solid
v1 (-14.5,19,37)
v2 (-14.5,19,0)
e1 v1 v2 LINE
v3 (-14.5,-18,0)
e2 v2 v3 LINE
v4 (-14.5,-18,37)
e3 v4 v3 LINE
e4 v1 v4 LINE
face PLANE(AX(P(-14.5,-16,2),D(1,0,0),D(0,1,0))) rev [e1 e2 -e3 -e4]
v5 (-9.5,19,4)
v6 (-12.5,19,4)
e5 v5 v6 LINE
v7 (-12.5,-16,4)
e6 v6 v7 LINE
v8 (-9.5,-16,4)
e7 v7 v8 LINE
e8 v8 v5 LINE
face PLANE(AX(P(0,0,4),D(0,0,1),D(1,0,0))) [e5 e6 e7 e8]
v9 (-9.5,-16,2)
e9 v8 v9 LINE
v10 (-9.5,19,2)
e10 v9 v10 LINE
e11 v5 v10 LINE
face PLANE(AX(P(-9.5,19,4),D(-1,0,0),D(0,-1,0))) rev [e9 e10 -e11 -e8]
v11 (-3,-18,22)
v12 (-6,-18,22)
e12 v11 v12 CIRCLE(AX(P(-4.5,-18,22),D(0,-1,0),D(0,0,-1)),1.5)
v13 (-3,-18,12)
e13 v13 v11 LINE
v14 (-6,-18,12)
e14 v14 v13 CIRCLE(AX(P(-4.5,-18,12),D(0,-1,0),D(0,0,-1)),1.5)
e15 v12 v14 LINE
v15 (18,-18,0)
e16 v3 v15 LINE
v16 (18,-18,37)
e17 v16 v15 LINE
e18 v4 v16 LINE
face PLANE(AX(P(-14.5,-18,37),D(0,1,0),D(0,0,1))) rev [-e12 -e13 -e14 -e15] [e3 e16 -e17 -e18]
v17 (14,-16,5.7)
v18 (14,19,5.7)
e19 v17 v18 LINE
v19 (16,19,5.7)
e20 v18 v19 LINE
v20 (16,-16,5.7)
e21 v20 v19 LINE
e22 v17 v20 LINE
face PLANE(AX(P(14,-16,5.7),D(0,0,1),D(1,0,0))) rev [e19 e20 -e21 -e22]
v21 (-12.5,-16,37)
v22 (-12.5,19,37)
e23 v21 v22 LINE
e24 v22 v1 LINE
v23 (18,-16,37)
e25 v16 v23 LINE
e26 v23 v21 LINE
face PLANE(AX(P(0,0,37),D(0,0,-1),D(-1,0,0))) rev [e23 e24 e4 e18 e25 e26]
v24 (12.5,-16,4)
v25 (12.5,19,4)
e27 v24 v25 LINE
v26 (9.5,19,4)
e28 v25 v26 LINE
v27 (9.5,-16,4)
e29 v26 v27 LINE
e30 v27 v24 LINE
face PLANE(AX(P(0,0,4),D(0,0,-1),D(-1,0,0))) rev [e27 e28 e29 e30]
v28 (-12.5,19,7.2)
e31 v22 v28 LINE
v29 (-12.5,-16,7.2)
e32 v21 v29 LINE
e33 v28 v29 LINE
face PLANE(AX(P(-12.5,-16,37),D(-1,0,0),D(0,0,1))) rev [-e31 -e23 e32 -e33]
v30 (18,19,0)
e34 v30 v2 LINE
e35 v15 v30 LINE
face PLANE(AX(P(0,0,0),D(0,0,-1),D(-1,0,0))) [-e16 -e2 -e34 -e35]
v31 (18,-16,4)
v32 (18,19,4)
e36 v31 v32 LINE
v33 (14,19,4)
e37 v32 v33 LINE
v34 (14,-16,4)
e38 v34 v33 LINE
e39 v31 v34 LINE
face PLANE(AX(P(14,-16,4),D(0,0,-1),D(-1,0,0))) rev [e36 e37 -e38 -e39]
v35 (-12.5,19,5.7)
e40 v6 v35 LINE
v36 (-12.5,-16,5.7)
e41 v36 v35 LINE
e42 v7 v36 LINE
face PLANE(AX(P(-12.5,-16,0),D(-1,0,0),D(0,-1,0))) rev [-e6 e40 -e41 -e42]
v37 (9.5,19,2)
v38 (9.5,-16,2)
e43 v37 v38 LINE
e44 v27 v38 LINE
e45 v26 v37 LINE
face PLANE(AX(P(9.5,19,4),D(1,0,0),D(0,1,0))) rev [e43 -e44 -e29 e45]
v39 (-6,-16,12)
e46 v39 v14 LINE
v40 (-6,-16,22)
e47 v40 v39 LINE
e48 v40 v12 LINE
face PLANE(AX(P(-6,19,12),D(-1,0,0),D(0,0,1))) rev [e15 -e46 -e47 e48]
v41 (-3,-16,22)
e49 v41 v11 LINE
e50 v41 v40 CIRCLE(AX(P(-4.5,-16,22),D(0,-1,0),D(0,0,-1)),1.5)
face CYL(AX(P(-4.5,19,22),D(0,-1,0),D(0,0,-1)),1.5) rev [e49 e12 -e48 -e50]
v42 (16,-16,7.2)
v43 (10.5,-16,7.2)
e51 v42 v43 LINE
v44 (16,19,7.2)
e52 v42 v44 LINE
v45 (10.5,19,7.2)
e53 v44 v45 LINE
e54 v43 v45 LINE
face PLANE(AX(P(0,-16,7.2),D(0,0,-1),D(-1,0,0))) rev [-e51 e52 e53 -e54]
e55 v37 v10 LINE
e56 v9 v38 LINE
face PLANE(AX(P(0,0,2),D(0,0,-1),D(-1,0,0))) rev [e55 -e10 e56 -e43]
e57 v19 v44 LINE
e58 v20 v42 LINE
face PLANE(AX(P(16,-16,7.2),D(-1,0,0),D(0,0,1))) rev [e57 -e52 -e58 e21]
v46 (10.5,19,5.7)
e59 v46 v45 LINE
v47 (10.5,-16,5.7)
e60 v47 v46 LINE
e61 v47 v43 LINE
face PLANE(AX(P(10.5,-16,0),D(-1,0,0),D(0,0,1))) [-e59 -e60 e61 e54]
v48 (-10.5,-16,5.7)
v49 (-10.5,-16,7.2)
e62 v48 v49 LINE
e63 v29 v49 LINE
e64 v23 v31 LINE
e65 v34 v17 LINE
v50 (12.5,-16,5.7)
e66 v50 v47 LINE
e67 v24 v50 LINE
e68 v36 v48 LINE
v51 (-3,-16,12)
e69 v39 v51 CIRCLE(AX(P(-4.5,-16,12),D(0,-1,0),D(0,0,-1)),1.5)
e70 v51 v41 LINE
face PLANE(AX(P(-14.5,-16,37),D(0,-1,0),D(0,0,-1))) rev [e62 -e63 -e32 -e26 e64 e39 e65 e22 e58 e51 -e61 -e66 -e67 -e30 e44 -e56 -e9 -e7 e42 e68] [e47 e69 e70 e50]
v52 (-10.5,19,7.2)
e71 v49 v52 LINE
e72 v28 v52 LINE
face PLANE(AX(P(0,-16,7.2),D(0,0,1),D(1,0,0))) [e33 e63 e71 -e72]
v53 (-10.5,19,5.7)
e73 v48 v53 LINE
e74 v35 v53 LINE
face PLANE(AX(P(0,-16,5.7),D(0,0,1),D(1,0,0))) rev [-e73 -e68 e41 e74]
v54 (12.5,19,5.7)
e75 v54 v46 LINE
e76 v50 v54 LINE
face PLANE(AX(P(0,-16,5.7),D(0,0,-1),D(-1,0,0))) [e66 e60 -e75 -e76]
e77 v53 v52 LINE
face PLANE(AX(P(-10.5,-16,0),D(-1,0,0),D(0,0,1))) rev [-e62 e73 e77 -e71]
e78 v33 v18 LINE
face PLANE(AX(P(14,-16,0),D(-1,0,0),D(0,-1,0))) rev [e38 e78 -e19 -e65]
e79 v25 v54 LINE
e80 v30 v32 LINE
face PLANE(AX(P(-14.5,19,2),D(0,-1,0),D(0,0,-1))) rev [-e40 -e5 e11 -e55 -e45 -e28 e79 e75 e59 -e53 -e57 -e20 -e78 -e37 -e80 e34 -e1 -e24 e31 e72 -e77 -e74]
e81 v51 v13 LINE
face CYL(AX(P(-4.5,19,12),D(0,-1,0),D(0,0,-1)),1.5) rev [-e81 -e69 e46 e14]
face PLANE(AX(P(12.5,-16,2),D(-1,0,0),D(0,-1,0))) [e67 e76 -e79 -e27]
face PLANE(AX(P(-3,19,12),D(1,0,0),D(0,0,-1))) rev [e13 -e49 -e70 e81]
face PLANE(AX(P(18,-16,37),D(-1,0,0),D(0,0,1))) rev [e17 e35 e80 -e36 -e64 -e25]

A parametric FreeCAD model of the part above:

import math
import FreeCAD as App
import Part
import Sketcher

V = App.Vector
Q = App.Units.Quantity


def add_polygon(sketch, points):
    """Adds a closed chain of lines whose ends are joined by coincident constraints."""
    first, n = sketch.GeometryCount, len(points)
    for a, b in zip(points, points[1:] + points[:1]):
        sketch.addGeometry(Part.LineSegment(App.Vector(*a, 0), App.Vector(*b, 0)), False)
    for i in range(n):
        sketch.addConstraint(Sketcher.Constraint("Coincident", first + i, 2, first + (i + 1) % n, 1))

doc = App.newDocument("Part")
body = doc.addObject("PartDesign::Body", "Body")

sketch1 = doc.addObject("Sketcher::SketchObject", "Sketch")
body.addObject(sketch1)
sketch1.AttachmentSupport = (doc.XY_Plane, [""])
sketch1.MapMode = "FlatFace"
add_polygon(sketch1, [(-14, 19), (-14, -16), (14, -16), (14, 19)])
sketch1.addConstraint([
    Sketcher.Constraint("Vertical", 0),
    Sketcher.Constraint("Horizontal", 1),
    Sketcher.Constraint("Vertical", 2),
    Sketcher.Constraint("Horizontal", 3),
    Sketcher.Constraint("DistanceX", 1, 1, 1, 2, Q("29 mm")),
    Sketcher.Constraint("DistanceY", 0, 2, 0, 1, Q("35 mm")),
    Sketcher.Constraint("DistanceY", 0, 2, -1, 1, Q("16 mm")),
    Sketcher.Constraint("DistanceX", 0, 2, -1, 1, Q("14.5 mm")),
])
pad1 = doc.addObject("PartDesign::Pad", "Pad")
body.addObject(pad1)
pad1.Profile = sketch1
pad1.Length = 2

sketch2 = doc.addObject("Sketcher::SketchObject", "Sketch001")
body.addObject(sketch2)
sketch2.AttachmentSupport = (doc.XY_Plane, [""])
sketch2.MapMode = "FlatFace"
sketch2.AttachmentOffset = App.Placement(V(0, 0, 2), App.Rotation())
add_polygon(sketch2, [(-12.5, 19), (-12.5, -16), (-9.5, -16), (-9.5, 19)])
add_polygon(sketch2, [(9.5, 19), (9.5, -16), (12.5, -16), (12.5, 19)])
sketch2.addConstraint([
    Sketcher.Constraint("Vertical", 0),
    Sketcher.Constraint("Horizontal", 1),
    Sketcher.Constraint("Vertical", 2),
    Sketcher.Constraint("Horizontal", 3),
    Sketcher.Constraint("Vertical", 4),
    Sketcher.Constraint("Horizontal", 5),
    Sketcher.Constraint("Vertical", 6),
    Sketcher.Constraint("Horizontal", 7),
    Sketcher.Constraint("Symmetric", 1, 2, 4, 2, -2),
    Sketcher.Constraint("Symmetric", 3, 2, 6, 2, -2),
    Sketcher.Constraint("DistanceX", 1, 1, 1, 2, Q("3 mm")),
    Sketcher.Constraint("DistanceY", 0, 2, 0, 1, Q("35 mm")),
    Sketcher.Constraint("DistanceY", 0, 2, -1, 1, Q("16 mm")),
    Sketcher.Constraint("DistanceX", 1, 2, 4, 2, Q("19 mm")),
])
pad2 = doc.addObject("PartDesign::Pad", "Pad001")
body.addObject(pad2)
pad2.Profile = sketch2
pad2.Length = 2

sketch3 = doc.addObject("Sketcher::SketchObject", "Sketch002")
body.addObject(sketch3)
sketch3.AttachmentSupport = (doc.XZ_Plane, [""])
sketch3.MapMode = "FlatFace"
sketch3.AttachmentOffset = App.Placement(V(0, 0, -19), App.Rotation())
add_polygon(sketch3, [(-14, 7.2), (-10.5, 7.2), (-10.5, 5.7), (-12.5, 5.7), (-12.5, 2), (-14, 2)])
add_polygon(sketch3, [(10.5, 5.7), (10.5, 7.2), (14, 7.2), (14, 2), (12.5, 2), (12.5, 5.7)])
sketch3.addConstraint([
    Sketcher.Constraint("Horizontal", 0),
    Sketcher.Constraint("Vertical", 1),
    Sketcher.Constraint("Horizontal", 2),
    Sketcher.Constraint("Vertical", 3),
    Sketcher.Constraint("Horizontal", 4),
    Sketcher.Constraint("Vertical", 5),
    Sketcher.Constraint("Vertical", 6),
    Sketcher.Constraint("Horizontal", 7),
    Sketcher.Constraint("Vertical", 8),
    Sketcher.Constraint("Horizontal", 9),
    Sketcher.Constraint("Vertical", 10),
    Sketcher.Constraint("Horizontal", 11),
    Sketcher.Constraint("Symmetric", 0, 2, 6, 2, -2),
    Sketcher.Constraint("Symmetric", 4, 2, 8, 2, -2),
    Sketcher.Constraint("Symmetric", 2, 2, 10, 2, -2),
    Sketcher.Constraint("Equal", 9, 1),
    Sketcher.Constraint("DistanceX", 2, 2, 2, 1, Q("2 mm")),
    Sketcher.Constraint("DistanceX", 0, 1, 0, 2, Q("3.5 mm")),
    Sketcher.Constraint("DistanceY", 3, 2, 3, 1, Q("3.7 mm")),
    Sketcher.Constraint("DistanceY", -1, 1, 3, 2, Q("2 mm")),
    Sketcher.Constraint("DistanceX", 4, 2, -1, 1, Q("14 mm")),
])
pad3 = doc.addObject("PartDesign::Pad", "Pad002")
body.addObject(pad3)
pad3.Profile = sketch3
pad3.Length = 35

sketch4 = doc.addObject("Sketcher::SketchObject", "Sketch003")
body.addObject(sketch4)
sketch4.AttachmentSupport = (doc.XY_Plane, [""])
sketch4.MapMode = "FlatFace"
sketch4.AttachmentOffset = App.Placement(V(0, 0, 2), App.Rotation())
add_polygon(sketch4, [(-14.5, 19), (-14.5, -16), (-12.5, -16), (-12.5, 19)])
sketch4.addConstraint([
    Sketcher.Constraint("Vertical", 0),
    Sketcher.Constraint("Horizontal", 1),
    Sketcher.Constraint("Vertical", 2),
    Sketcher.Constraint("Horizontal", 3),
    Sketcher.Constraint("DistanceX", 1, 1, 1, 2, Q("2 mm")),
    Sketcher.Constraint("DistanceY", 0, 2, 0, 1, Q("35 mm")),
    Sketcher.Constraint("DistanceY", 0, 2, -1, 1, Q("16 mm")),
    Sketcher.Constraint("DistanceX", 0, 2, -1, 1, Q("14.5 mm")),
])
pad4 = doc.addObject("PartDesign::Pad", "Pad003")
body.addObject(pad4)
pad4.Profile = sketch4
pad4.Length = 35

sketch5 = doc.addObject("Sketcher::SketchObject", "Sketch004")
body.addObject(sketch5)
sketch5.AttachmentSupport = (doc.XY_Plane, [""])
sketch5.MapMode = "FlatFace"
add_polygon(sketch5, [(-14.5, -16), (-14.5, -18), (18, -18), (18, -16)])
sketch5.addConstraint([
    Sketcher.Constraint("Vertical", 0),
    Sketcher.Constraint("Horizontal", 1),
    Sketcher.Constraint("Vertical", 2),
    Sketcher.Constraint("Horizontal", 3),
    Sketcher.Constraint("DistanceY", 0, 2, 0, 1, Q("2 mm")),
    Sketcher.Constraint("DistanceX", 1, 1, 1, 2, Q("32.5 mm")),
    Sketcher.Constraint("DistanceY", 0, 2, -1, 1, Q("18 mm")),
    Sketcher.Constraint("DistanceX", -1, 1, 1, 2, Q("18 mm")),
])
pad5 = doc.addObject("PartDesign::Pad", "Pad004")
body.addObject(pad5)
pad5.Profile = sketch5
pad5.Length = 37

sketch6 = doc.addObject("Sketcher::SketchObject", "Sketch005")
body.addObject(sketch6)
sketch6.AttachmentSupport = (doc.XZ_Plane, [""])
sketch6.MapMode = "FlatFace"
sketch6.AttachmentOffset = App.Placement(V(0, 0, 18), App.Rotation())
sketch6.addGeometry([
    Part.LineSegment(V(-6, 22, 0), V(-6, 12, 0)),
    Part.ArcOfCircle(Part.Circle(V(-4.5, 12, 0), V(0, 0, 1), 1.5), math.radians(180), math.radians(360)),
    Part.LineSegment(V(-3, 12, 0), V(-3, 22, 0)),
    Part.ArcOfCircle(Part.Circle(V(-4.5, 22, 0), V(0, 0, 1), 1.5), math.radians(0), math.radians(180)),
], False)
sketch6.addConstraint([
    Sketcher.Constraint("Tangent", 0, 2, 1, 1),
    Sketcher.Constraint("Tangent", 1, 2, 2, 1),
    Sketcher.Constraint("Tangent", 2, 2, 3, 1),
    Sketcher.Constraint("Tangent", 3, 2, 0, 1),
    Sketcher.Constraint("Vertical", 0),
    Sketcher.Constraint("Vertical", 2),
    Sketcher.Constraint("Radius", 1, Q("1.5 mm")),
    Sketcher.Constraint("DistanceY", 0, 2, 0, 1, Q("10 mm")),
    Sketcher.Constraint("DistanceY", -1, 1, 1, 3, Q("12 mm")),
    Sketcher.Constraint("DistanceX", 0, 2, -1, 1, Q("6 mm")),
])
pocket1 = doc.addObject("PartDesign::Pocket", "Pocket")
body.addObject(pocket1)
pocket1.Profile = sketch6
pocket1.Type = "ThroughAll"

sketch7 = doc.addObject("Sketcher::SketchObject", "Sketch006")
body.addObject(sketch7)
sketch7.AttachmentSupport = (doc.XZ_Plane, [""])
sketch7.MapMode = "FlatFace"
sketch7.AttachmentOffset = App.Placement(V(0, 0, -19), App.Rotation())
add_polygon(sketch7, [(16, 5.7), (16, 7.2), (14, 7.2), (14, 5.7)])
add_polygon(sketch7, [(17, 2), (17, 4), (14, 4), (14, 2)])
sketch7.addConstraint([
    Sketcher.Constraint("Vertical", 0),
    Sketcher.Constraint("Horizontal", 1),
    Sketcher.Constraint("Vertical", 2),
    Sketcher.Constraint("Horizontal", 3),
    Sketcher.Constraint("Vertical", 4),
    Sketcher.Constraint("Horizontal", 5),
    Sketcher.Constraint("Vertical", 6),
    Sketcher.Constraint("Horizontal", 7),
    Sketcher.Constraint("Vertical", 2, 2, 5, 2),
    Sketcher.Constraint("Equal", 3, 4),
    Sketcher.Constraint("DistanceX", 1, 2, 1, 1, Q("2 mm")),
    Sketcher.Constraint("DistanceX", 5, 2, 5, 1, Q("3 mm")),
    Sketcher.Constraint("DistanceY", 0, 1, 0, 2, Q("1.5 mm")),
    Sketcher.Constraint("DistanceX", -1, 1, 0, 2, Q("16 mm")),
    Sketcher.Constraint("DistanceY", -1, 1, 4, 2, Q("4 mm")),
    Sketcher.Constraint("DistanceY", -1, 1, 0, 2, Q("7.2 mm")),
])
pad6 = doc.addObject("PartDesign::Pad", "Pad005")
body.addObject(pad6)
pad6.Profile = sketch7
pad6.Length = 35

sketch8 = doc.addObject("Sketcher::SketchObject", "Sketch007")
body.addObject(sketch8)
sketch8.AttachmentSupport = (doc.XZ_Plane, [""])
sketch8.MapMode = "FlatFace"
sketch8.AttachmentOffset = App.Placement(V(0, 0, -19), App.Rotation())
add_polygon(sketch8, [(18, 0), (18, 4), (17, 4), (17, 2), (14.5, 2), (14.5, 0)])
sketch8.addConstraint([
    Sketcher.Constraint("Vertical", 0),
    Sketcher.Constraint("Horizontal", 1),
    Sketcher.Constraint("Vertical", 2),
    Sketcher.Constraint("Horizontal", 3),
    Sketcher.Constraint("Vertical", 4),
    Sketcher.Constraint("Horizontal", 5),
    Sketcher.Constraint("PointOnObject", 4, 2, -1),
    Sketcher.Constraint("Equal", 2, 4),
    Sketcher.Constraint("DistanceX", 1, 2, 1, 1, Q("1 mm")),
    Sketcher.Constraint("DistanceY", 0, 1, 0, 2, Q("4 mm")),
    Sketcher.Constraint("DistanceX", 3, 2, 3, 1, Q("2.5 mm")),
    Sketcher.Constraint("DistanceX", -1, 1, 0, 2, Q("18 mm")),
])
pad7 = doc.addObject("PartDesign::Pad", "Pad006")
body.addObject(pad7)
pad7.Profile = sketch8
pad7.Length = 35

doc.recompute()
